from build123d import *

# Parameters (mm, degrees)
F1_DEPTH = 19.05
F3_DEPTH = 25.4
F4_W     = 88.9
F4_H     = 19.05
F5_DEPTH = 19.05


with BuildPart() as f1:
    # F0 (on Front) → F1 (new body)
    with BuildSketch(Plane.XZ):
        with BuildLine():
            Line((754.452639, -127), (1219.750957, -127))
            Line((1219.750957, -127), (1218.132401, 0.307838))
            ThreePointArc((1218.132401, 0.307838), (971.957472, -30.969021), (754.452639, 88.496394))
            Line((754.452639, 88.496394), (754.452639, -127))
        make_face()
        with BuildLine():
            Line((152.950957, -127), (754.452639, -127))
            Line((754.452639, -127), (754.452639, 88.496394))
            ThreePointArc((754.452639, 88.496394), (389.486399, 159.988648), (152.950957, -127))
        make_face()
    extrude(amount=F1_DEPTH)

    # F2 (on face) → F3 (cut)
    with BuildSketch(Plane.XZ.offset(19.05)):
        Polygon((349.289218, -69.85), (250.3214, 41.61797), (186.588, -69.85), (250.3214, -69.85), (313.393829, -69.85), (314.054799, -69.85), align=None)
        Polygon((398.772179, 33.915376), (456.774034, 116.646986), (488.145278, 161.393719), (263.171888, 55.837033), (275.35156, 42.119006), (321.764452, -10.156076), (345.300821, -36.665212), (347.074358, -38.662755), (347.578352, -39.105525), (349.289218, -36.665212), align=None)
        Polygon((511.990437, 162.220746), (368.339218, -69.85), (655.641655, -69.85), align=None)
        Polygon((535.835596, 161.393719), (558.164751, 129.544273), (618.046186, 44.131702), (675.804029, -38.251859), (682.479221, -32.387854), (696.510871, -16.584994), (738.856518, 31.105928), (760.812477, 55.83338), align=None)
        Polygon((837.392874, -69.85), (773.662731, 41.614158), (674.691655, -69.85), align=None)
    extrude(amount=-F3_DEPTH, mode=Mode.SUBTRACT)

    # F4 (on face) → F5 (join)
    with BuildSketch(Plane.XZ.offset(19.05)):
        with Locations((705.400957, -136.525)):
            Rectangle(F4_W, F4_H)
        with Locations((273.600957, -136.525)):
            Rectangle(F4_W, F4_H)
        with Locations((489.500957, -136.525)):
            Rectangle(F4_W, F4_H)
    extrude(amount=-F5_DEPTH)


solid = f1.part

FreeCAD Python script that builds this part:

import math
import FreeCAD as App
import Part
import Sketcher
Q = App.Units.Quantity

doc = App.newDocument("Part")
body = doc.addObject("PartDesign::Body", "Body")

# Sketch on XZ plane
sketch1 = doc.addObject("Sketcher::SketchObject", "Sketch")
body.addObject(sketch1)
sketch1.AttachmentSupport = (doc.XZ_Plane, [""])
sketch1.MapMode = "FlatFace"
sketch1.addGeometry([
    Part.LineSegment(App.Vector(1220, -127, 0), App.Vector(1218, 0, 0)),
    Part.ArcOfCircle(Part.Circle(App.Vector(1047, 363, 0), App.Vector(0, 0, 1), 401), math.radians(-137), math.radians(-65)),
    Part.ArcOfCircle(Part.Circle(App.Vector(512, -182, 0), App.Vector(0, 0, 1), 363), math.radians(48), math.radians(171)),
    Part.LineSegment(App.Vector(153, -127, 0), App.Vector(1220, -127, 0)),
], False)
sketch1.addConstraint([
    Sketcher.Constraint("Coincident", 0, 2, 1, 2),
    Sketcher.Constraint("Coincident", 1, 1, 2, 1),
    Sketcher.Constraint("Coincident", 2, 2, 3, 1),
    Sketcher.Constraint("Coincident", 3, 2, 0, 1),
    Sketcher.Constraint("Horizontal", 3),
    Sketcher.Constraint("Radius", 1, Q("15.8 in")),
    Sketcher.Constraint("Radius", 2, Q("14.3 in")),
    Sketcher.Constraint("DistanceX", 3, 1, 3, 2, Q("42 in")),
    Sketcher.Constraint("DistanceY", 3, 2, -1, 1, Q("5 in")),
    Sketcher.Constraint("DistanceX", -1, 1, 0, 2, Q("1218.132401 mm")),
    Sketcher.Constraint("DistanceX", -1, 1, 1, 1, Q("754.452639 mm")),
    Sketcher.Constraint("DistanceX", 2, 3, 1, 3, Q("534.951051 mm")),
    Sketcher.Constraint("DistanceY", 2, 3, 1, 3, Q("545.232869 mm")),
    Sketcher.Constraint("DistanceY", 3, 2, 0, 2, Q("127.307838 mm")),
])
pad1 = doc.addObject("PartDesign::Pad", "Pad")
body.addObject(pad1)
pad1.Profile = sketch1
pad1.Length = Q("0.75 in")

# Sketch on XZ plane
sketch2 = doc.addObject("Sketcher::SketchObject", "Sketch001")
body.addObject(sketch2)
sketch2.AttachmentSupport = (doc.XZ_Plane, [""])
sketch2.MapMode = "FlatFace"
sketch2.AttachmentOffset = App.Placement(App.Vector(0, 0, 0.75 * 25.4), App.Rotation())
sketch2.addGeometry([
    Part.LineSegment(App.Vector(349.3, -69.8, 0), App.Vector(250.3, 41.6, 0)),  # 0
    Part.LineSegment(App.Vector(250.3, 41.6, 0), App.Vector(186.6, -69.8, 0)),  # 1
    Part.LineSegment(App.Vector(186.6, -69.8, 0), App.Vector(349.3, -69.8, 0)),  # 2
    Part.LineSegment(App.Vector(398.8, 33.9, 0), App.Vector(456.8, 116.6, 0)),  # 3
    Part.LineSegment(App.Vector(456.8, 116.6, 0), App.Vector(488.1, 161.4, 0)),  # 4
    Part.LineSegment(App.Vector(488.1, 161.4, 0), App.Vector(263.2, 55.8, 0)),  # 5
    Part.LineSegment(App.Vector(263.2, 55.8, 0), App.Vector(275.4, 42.1, 0)),  # 6
    Part.LineSegment(App.Vector(275.4, 42.1, 0), App.Vector(321.8, -10.2, 0)),  # 7
    Part.LineSegment(App.Vector(321.8, -10.2, 0), App.Vector(345.3, -36.7, 0)),  # 8
    Part.LineSegment(App.Vector(345.3, -36.7, 0), App.Vector(347.1, -38.7, 0)),  # 9
    Part.LineSegment(App.Vector(347.1, -38.7, 0), App.Vector(347.6, -39.1, 0)),  # 10
    Part.LineSegment(App.Vector(347.6, -39.1, 0), App.Vector(349.3, -36.7, 0)),  # 11
    Part.LineSegment(App.Vector(349.3, -36.7, 0), App.Vector(398.8, 33.9, 0)),  # 12
    Part.LineSegment(App.Vector(512, 162.2, 0), App.Vector(368.3, -69.8, 0)),  # 13
    Part.LineSegment(App.Vector(368.3, -69.8, 0), App.Vector(655.6, -69.8, 0)),  # 14
    Part.LineSegment(App.Vector(655.6, -69.8, 0), App.Vector(512, 162.2, 0)),  # 15
    Part.LineSegment(App.Vector(535.8, 161.4, 0), App.Vector(558.2, 129.5, 0)),  # 16
    Part.LineSegment(App.Vector(558.2, 129.5, 0), App.Vector(618, 44.1, 0)),  # 17
    Part.LineSegment(App.Vector(618, 44.1, 0), App.Vector(675.8, -38.3, 0)),  # 18
    Part.LineSegment(App.Vector(675.8, -38.3, 0), App.Vector(682.5, -32.4, 0)),  # 19
    Part.LineSegment(App.Vector(682.5, -32.4, 0), App.Vector(696.5, -16.6, 0)),  # 20
    Part.LineSegment(App.Vector(696.5, -16.6, 0), App.Vector(738.9, 31.1, 0)),  # 21
    Part.LineSegment(App.Vector(738.9, 31.1, 0), App.Vector(760.8, 55.8, 0)),  # 22
    Part.LineSegment(App.Vector(760.8, 55.8, 0), App.Vector(535.8, 161.4, 0)),  # 23
    Part.LineSegment(App.Vector(837.4, -69.8, 0), App.Vector(773.7, 41.6, 0)),  # 24
    Part.LineSegment(App.Vector(773.7, 41.6, 0), App.Vector(674.7, -69.8, 0)),  # 25
    Part.LineSegment(App.Vector(674.7, -69.8, 0), App.Vector(837.4, -69.8, 0)),  # 26
], False)
sketch2.addConstraint([
    Sketcher.Constraint("Coincident", 0, 2, 1, 1),
    Sketcher.Constraint("Coincident", 1, 2, 2, 1),
    Sketcher.Constraint("Coincident", 2, 2, 0, 1),
    Sketcher.Constraint("Coincident", 3, 2, 4, 1),
    Sketcher.Constraint("Coincident", 4, 2, 5, 1),
    Sketcher.Constraint("Coincident", 5, 2, 6, 1),
    Sketcher.Constraint("Coincident", 6, 2, 7, 1),
    Sketcher.Constraint("Coincident", 7, 2, 8, 1),
    Sketcher.Constraint("Coincident", 8, 2, 9, 1),
    Sketcher.Constraint("Coincident", 9, 2, 10, 1),
    Sketcher.Constraint("Coincident", 10, 2, 11, 1),
    Sketcher.Constraint("Coincident", 11, 2, 12, 1),
    Sketcher.Constraint("Coincident", 12, 2, 3, 1),
    Sketcher.Constraint("Coincident", 13, 2, 14, 1),
    Sketcher.Constraint("Coincident", 14, 2, 15, 1),
    Sketcher.Constraint("Coincident", 15, 2, 13, 1),
    Sketcher.Constraint("Coincident", 16, 2, 17, 1),
    Sketcher.Constraint("Coincident", 17, 2, 18, 1),
    Sketcher.Constraint("Coincident", 18, 2, 19, 1),
    Sketcher.Constraint("Coincident", 19, 2, 20, 1),
    Sketcher.Constraint("Coincident", 20, 2, 21, 1),
    Sketcher.Constraint("Coincident", 21, 2, 22, 1),
    Sketcher.Constraint("Coincident", 22, 2, 23, 1),
    Sketcher.Constraint("Coincident", 23, 2, 16, 1),
    Sketcher.Constraint("Coincident", 24, 2, 25, 1),
    Sketcher.Constraint("Coincident", 25, 2, 26, 1),
    Sketcher.Constraint("Coincident", 26, 2, 24, 1),
    Sketcher.Constraint("Horizontal", 2),
    Sketcher.Constraint("Horizontal", 14),
    Sketcher.Constraint("Horizontal", 26),
    Sketcher.Constraint("Parallel", 3, 4),
    Sketcher.Constraint("Parallel", 0, 6),
    Sketcher.Constraint("Parallel", 6, 7),
    Sketcher.Constraint("Parallel", 7, 8),
    Sketcher.Constraint("Parallel", 8, 9),
    Sketcher.Constraint("Parallel", 4, 11),
    Sketcher.Constraint("Parallel", 11, 12),
    Sketcher.Constraint("Parallel", 16, 17),
    Sketcher.Constraint("Parallel", 17, 18),
    Sketcher.Constraint("Parallel", 20, 21),
    Sketcher.Constraint("Parallel", 21, 22),
    Sketcher.Constraint("Parallel", 22, 25),
    Sketcher.Constraint("Horizontal", 8, 2, 11, 2),
    Sketcher.Constraint("Horizontal", 2, 2, 13, 2),
    Sketcher.Constraint("Horizontal", 4, 2, 23, 2),
    Sketcher.Constraint("Horizontal", 14, 2, 25, 2),
    Sketcher.Constraint("Vertical", 2, 2, 11, 2),
    Sketcher.Constraint("Equal", 2, 26),
    Sketcher.Constraint("Equal", 13, 15),
    Sketcher.Constraint("DistanceY", 1, 2, -1, 1, Q("2.75 in")),
    Sketcher.Constraint("DistanceX", 2, 2, 13, 2, Q("0.75 in")),
    Sketcher.Constraint("DistanceX", 14, 2, 25, 2, Q("0.75 in")),
    Sketcher.Constraint("Distance", 24, Q("5.055 in")),
    Sketcher.Constraint("Distance", 11, Q("2.9803 mm")),
    Sketcher.Constraint("DistanceX", 2, 1, 2, 2, Q("162.701218 mm")),
    Sketcher.Constraint("DistanceX", -1, 1, 0, 2, Q("250.3214 mm")),
    Sketcher.Constraint("DistanceX", -1, 1, 1, 2, Q("186.588 mm")),
    Sketcher.Constraint("DistanceY", -1, 1, 17, 2, Q("44.131702 mm")),
    Sketcher.Constraint("DistanceX", 6, 2, 9, 2, Q("71.722798 mm")),
    Sketcher.Constraint("DistanceX", 7, 2, 10, 2, Q("25.8139 mm")),
    Sketcher.Constraint("DistanceY", 10, 2, 12, 2, Q("73.020901 mm")),
    Sketcher.Constraint("DistanceY", 19, 2, 15, 2, Q("194.6086 mm")),
    Sketcher.Constraint("DistanceX", 18, 2, 24, 2, Q("97.858702 mm")),
    Sketcher.Constraint("Distance", 10, Q("0.670862 mm")),
    Sketcher.Constraint("Distance", 12, Q("86.198508 mm")),
    Sketcher.Constraint("Distance", 13, Q("272.933149 mm")),
    Sketcher.Constraint("Distance", 17, Q("104.31248 mm")),
    Sketcher.Constraint("Distance", 20, Q("21.133329 mm")),
    Sketcher.Constraint("Distance", 22, Q("33.068278 mm")),
    Sketcher.Constraint("Distance", 23, Q("248.510728 mm")),
    Sketcher.Constraint("DistanceX", 14, 1, 14, 2, Q("287.302437 mm")),
    Sketcher.Constraint("DistanceY", -1, 1, 0, 2, Q("41.61797 mm")),
    Sketcher.Constraint("DistanceX", -1, 1, 4, 2, Q("488.145278 mm")),
    Sketcher.Constraint("DistanceY", -1, 1, 4, 2, Q("161.393719 mm")),
    Sketcher.Constraint("DistanceX", -1, 1, 5, 2, Q("263.171888 mm")),
    Sketcher.Constraint("DistanceX", -1, 1, 6, 2, Q("275.35156 mm")),
    Sketcher.Constraint("DistanceX", -1, 1, 16, 2, Q("558.164751 mm")),
    Sketcher.Constraint("DistanceX", -1, 1, 18, 2, Q("675.804029 mm")),
    Sketcher.Constraint("DistanceY", 18, 2, -1, 1, Q("38.251859 mm")),
    Sketcher.Constraint("DistanceX", -1, 1, 19, 2, Q("682.479221 mm")),
    Sketcher.Constraint("DistanceY", 6, 2, 3, 2, Q("74.52798 mm")),
])
pocket1 = doc.addObject("PartDesign::Pocket", "Pocket")
body.addObject(pocket1)
pocket1.Profile = sketch2
pocket1.Length = Q("1 in")

# Sketch on XZ plane
sketch3 = doc.addObject("Sketcher::SketchObject", "Sketch002")
body.addObject(sketch3)
sketch3.AttachmentSupport = (doc.XZ_Plane, [""])
sketch3.MapMode = "FlatFace"
sketch3.AttachmentOffset = App.Placement(App.Vector(0, 0, 0.75 * 25.4), App.Rotation())
sketch3.addGeometry([
    Part.LineSegment(App.Vector(661, -127, 0), App.Vector(661, -146, 0)),  # 0
    Part.LineSegment(App.Vector(661, -146, 0), App.Vector(750, -146, 0)),  # 1
    Part.LineSegment(App.Vector(750, -146, 0), App.Vector(750, -127, 0)),  # 2
    Part.LineSegment(App.Vector(750, -127, 0), App.Vector(661, -127, 0)),  # 3
    Part.LineSegment(App.Vector(229, -127, 0), App.Vector(229, -146, 0)),  # 4
    Part.LineSegment(App.Vector(229, -146, 0), App.Vector(318, -146, 0)),  # 5
    Part.LineSegment(App.Vector(318, -146, 0), App.Vector(318, -127, 0)),  # 6
    Part.LineSegment(App.Vector(318, -127, 0), App.Vector(229, -127, 0)),  # 7
    Part.LineSegment(App.Vector(445, -127, 0), App.Vector(445, -146, 0)),  # 8
    Part.LineSegment(App.Vector(445, -146, 0), App.Vector(534, -146, 0)),  # 9
    Part.LineSegment(App.Vector(534, -146, 0), App.Vector(534, -127, 0)),  # 10
    Part.LineSegment(App.Vector(534, -127, 0), App.Vector(445, -127, 0)),  # 11
], False)
sketch3.addConstraint([
    Sketcher.Constraint("Coincident", 0, 2, 1, 1),
    Sketcher.Constraint("Coincident", 1, 2, 2, 1),
    Sketcher.Constraint("Coincident", 2, 2, 3, 1),
    Sketcher.Constraint("Coincident", 3, 2, 0, 1),
    Sketcher.Constraint("Coincident", 4, 2, 5, 1),
    Sketcher.Constraint("Coincident", 5, 2, 6, 1),
    Sketcher.Constraint("Coincident", 6, 2, 7, 1),
    Sketcher.Constraint("Coincident", 7, 2, 4, 1),
    Sketcher.Constraint("Coincident", 8, 2, 9, 1),
    Sketcher.Constraint("Coincident", 9, 2, 10, 1),
    Sketcher.Constraint("Coincident", 10, 2, 11, 1),
    Sketcher.Constraint("Coincident", 11, 2, 8, 1),
    Sketcher.Constraint("Vertical", 0),
    Sketcher.Constraint("Horizontal", 1),
    Sketcher.Constraint("Vertical", 2),
    Sketcher.Constraint("Horizontal", 3),
    Sketcher.Constraint("Vertical", 4),
    Sketcher.Constraint("Horizontal", 5),
    Sketcher.Constraint("Vertical", 6),
    Sketcher.Constraint("Horizontal", 7),
    Sketcher.Constraint("Vertical", 8),
    Sketcher.Constraint("Horizontal", 9),
    Sketcher.Constraint("Vertical", 10),
    Sketcher.Constraint("Horizontal", 11),
    Sketcher.Constraint("Horizontal", 1, 2, 4, 2),
    Sketcher.Constraint("Horizontal", 3, 2, 6, 2),
    Sketcher.Constraint("Horizontal", 5, 2, 8, 2),
    Sketcher.Constraint("Horizontal", 7, 2, 10, 2),
    Sketcher.Constraint("Equal", 3, 5),
    Sketcher.Constraint("Equal", 7, 9),
    Sketcher.Constraint("DistanceX", 1, 1, 1, 2, Q("3.5 in")),
    Sketcher.Constraint("DistanceY", 2, 2, -1, 1, Q("5 in")),
    Sketcher.Constraint("DistanceX", 4, 2, 0, 2, Q("17 in")),
    Sketcher.Constraint("DistanceX", 5, 2, 8, 2, Q("5 in")),
    Sketcher.Constraint("DistanceY", 0, 2, 0, 1, Q("0.75 in")),
    Sketcher.Constraint("DistanceX", -1, 1, 0, 2, Q("660.950957 mm")),
])
pad2 = doc.addObject("PartDesign::Pad", "Pad001")
body.addObject(pad2)
pad2.Profile = sketch3
pad2.Length = Q("0.75 in")
pad2.Reversed = True

doc.recompute()
